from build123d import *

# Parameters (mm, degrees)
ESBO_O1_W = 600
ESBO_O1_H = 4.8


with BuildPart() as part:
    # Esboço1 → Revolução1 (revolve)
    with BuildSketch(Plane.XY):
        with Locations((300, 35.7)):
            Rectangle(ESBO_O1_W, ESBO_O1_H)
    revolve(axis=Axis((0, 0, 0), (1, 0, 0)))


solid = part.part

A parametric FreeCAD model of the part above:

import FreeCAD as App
import Part
import Sketcher

V = App.Vector
Q = App.Units.Quantity


def add_polygon(sketch, points):
    """Adds a closed chain of lines whose ends are joined by coincident constraints."""
    first, n = sketch.GeometryCount, len(points)
    for a, b in zip(points, points[1:] + points[:1]):
        sketch.addGeometry(Part.LineSegment(App.Vector(*a, 0), App.Vector(*b, 0)), False)
    for i in range(n):
        sketch.addConstraint(Sketcher.Constraint("Coincident", first + i, 2, first + (i + 1) % n, 1))

doc = App.newDocument("Part")
body = doc.addObject("PartDesign::Body", "Body")

# Sketch on XY plane
sketch1 = body.newObject("Sketcher::SketchObject", "Sketch")
sketch1.AttachmentSupport = (doc.getObject("XY_Plane"), [""])
sketch1.MapMode = "FlatFace"
add_polygon(sketch1, [(0, 38.1), (0, 33.3), (600, 33.3), (600, 38.1)])  # lines 0-3
sketch1.addConstraint([
    Sketcher.Constraint("Vertical", 0),
    Sketcher.Constraint("Horizontal", 1),
    Sketcher.Constraint("Vertical", 2),
    Sketcher.Constraint("Horizontal", 3),
    Sketcher.Constraint("PointOnObject", 0, 2, -2),
    Sketcher.Constraint("DistanceX", 1, 1, 1, 2, Q("600 mm")),
    Sketcher.Constraint("DistanceY", 0, 2, 0, 1, Q("4.8 mm")),
    Sketcher.Constraint("DistanceY", -1, 1, 0, 2, Q("33.3 mm")),
])
revolution = body.newObject("PartDesign::Revolution", "Revolution")
revolution.Profile = sketch1
revolution.ReferenceAxis = (sketch1, ["H_Axis"])
revolution.Angle = 360

doc.recompute()
